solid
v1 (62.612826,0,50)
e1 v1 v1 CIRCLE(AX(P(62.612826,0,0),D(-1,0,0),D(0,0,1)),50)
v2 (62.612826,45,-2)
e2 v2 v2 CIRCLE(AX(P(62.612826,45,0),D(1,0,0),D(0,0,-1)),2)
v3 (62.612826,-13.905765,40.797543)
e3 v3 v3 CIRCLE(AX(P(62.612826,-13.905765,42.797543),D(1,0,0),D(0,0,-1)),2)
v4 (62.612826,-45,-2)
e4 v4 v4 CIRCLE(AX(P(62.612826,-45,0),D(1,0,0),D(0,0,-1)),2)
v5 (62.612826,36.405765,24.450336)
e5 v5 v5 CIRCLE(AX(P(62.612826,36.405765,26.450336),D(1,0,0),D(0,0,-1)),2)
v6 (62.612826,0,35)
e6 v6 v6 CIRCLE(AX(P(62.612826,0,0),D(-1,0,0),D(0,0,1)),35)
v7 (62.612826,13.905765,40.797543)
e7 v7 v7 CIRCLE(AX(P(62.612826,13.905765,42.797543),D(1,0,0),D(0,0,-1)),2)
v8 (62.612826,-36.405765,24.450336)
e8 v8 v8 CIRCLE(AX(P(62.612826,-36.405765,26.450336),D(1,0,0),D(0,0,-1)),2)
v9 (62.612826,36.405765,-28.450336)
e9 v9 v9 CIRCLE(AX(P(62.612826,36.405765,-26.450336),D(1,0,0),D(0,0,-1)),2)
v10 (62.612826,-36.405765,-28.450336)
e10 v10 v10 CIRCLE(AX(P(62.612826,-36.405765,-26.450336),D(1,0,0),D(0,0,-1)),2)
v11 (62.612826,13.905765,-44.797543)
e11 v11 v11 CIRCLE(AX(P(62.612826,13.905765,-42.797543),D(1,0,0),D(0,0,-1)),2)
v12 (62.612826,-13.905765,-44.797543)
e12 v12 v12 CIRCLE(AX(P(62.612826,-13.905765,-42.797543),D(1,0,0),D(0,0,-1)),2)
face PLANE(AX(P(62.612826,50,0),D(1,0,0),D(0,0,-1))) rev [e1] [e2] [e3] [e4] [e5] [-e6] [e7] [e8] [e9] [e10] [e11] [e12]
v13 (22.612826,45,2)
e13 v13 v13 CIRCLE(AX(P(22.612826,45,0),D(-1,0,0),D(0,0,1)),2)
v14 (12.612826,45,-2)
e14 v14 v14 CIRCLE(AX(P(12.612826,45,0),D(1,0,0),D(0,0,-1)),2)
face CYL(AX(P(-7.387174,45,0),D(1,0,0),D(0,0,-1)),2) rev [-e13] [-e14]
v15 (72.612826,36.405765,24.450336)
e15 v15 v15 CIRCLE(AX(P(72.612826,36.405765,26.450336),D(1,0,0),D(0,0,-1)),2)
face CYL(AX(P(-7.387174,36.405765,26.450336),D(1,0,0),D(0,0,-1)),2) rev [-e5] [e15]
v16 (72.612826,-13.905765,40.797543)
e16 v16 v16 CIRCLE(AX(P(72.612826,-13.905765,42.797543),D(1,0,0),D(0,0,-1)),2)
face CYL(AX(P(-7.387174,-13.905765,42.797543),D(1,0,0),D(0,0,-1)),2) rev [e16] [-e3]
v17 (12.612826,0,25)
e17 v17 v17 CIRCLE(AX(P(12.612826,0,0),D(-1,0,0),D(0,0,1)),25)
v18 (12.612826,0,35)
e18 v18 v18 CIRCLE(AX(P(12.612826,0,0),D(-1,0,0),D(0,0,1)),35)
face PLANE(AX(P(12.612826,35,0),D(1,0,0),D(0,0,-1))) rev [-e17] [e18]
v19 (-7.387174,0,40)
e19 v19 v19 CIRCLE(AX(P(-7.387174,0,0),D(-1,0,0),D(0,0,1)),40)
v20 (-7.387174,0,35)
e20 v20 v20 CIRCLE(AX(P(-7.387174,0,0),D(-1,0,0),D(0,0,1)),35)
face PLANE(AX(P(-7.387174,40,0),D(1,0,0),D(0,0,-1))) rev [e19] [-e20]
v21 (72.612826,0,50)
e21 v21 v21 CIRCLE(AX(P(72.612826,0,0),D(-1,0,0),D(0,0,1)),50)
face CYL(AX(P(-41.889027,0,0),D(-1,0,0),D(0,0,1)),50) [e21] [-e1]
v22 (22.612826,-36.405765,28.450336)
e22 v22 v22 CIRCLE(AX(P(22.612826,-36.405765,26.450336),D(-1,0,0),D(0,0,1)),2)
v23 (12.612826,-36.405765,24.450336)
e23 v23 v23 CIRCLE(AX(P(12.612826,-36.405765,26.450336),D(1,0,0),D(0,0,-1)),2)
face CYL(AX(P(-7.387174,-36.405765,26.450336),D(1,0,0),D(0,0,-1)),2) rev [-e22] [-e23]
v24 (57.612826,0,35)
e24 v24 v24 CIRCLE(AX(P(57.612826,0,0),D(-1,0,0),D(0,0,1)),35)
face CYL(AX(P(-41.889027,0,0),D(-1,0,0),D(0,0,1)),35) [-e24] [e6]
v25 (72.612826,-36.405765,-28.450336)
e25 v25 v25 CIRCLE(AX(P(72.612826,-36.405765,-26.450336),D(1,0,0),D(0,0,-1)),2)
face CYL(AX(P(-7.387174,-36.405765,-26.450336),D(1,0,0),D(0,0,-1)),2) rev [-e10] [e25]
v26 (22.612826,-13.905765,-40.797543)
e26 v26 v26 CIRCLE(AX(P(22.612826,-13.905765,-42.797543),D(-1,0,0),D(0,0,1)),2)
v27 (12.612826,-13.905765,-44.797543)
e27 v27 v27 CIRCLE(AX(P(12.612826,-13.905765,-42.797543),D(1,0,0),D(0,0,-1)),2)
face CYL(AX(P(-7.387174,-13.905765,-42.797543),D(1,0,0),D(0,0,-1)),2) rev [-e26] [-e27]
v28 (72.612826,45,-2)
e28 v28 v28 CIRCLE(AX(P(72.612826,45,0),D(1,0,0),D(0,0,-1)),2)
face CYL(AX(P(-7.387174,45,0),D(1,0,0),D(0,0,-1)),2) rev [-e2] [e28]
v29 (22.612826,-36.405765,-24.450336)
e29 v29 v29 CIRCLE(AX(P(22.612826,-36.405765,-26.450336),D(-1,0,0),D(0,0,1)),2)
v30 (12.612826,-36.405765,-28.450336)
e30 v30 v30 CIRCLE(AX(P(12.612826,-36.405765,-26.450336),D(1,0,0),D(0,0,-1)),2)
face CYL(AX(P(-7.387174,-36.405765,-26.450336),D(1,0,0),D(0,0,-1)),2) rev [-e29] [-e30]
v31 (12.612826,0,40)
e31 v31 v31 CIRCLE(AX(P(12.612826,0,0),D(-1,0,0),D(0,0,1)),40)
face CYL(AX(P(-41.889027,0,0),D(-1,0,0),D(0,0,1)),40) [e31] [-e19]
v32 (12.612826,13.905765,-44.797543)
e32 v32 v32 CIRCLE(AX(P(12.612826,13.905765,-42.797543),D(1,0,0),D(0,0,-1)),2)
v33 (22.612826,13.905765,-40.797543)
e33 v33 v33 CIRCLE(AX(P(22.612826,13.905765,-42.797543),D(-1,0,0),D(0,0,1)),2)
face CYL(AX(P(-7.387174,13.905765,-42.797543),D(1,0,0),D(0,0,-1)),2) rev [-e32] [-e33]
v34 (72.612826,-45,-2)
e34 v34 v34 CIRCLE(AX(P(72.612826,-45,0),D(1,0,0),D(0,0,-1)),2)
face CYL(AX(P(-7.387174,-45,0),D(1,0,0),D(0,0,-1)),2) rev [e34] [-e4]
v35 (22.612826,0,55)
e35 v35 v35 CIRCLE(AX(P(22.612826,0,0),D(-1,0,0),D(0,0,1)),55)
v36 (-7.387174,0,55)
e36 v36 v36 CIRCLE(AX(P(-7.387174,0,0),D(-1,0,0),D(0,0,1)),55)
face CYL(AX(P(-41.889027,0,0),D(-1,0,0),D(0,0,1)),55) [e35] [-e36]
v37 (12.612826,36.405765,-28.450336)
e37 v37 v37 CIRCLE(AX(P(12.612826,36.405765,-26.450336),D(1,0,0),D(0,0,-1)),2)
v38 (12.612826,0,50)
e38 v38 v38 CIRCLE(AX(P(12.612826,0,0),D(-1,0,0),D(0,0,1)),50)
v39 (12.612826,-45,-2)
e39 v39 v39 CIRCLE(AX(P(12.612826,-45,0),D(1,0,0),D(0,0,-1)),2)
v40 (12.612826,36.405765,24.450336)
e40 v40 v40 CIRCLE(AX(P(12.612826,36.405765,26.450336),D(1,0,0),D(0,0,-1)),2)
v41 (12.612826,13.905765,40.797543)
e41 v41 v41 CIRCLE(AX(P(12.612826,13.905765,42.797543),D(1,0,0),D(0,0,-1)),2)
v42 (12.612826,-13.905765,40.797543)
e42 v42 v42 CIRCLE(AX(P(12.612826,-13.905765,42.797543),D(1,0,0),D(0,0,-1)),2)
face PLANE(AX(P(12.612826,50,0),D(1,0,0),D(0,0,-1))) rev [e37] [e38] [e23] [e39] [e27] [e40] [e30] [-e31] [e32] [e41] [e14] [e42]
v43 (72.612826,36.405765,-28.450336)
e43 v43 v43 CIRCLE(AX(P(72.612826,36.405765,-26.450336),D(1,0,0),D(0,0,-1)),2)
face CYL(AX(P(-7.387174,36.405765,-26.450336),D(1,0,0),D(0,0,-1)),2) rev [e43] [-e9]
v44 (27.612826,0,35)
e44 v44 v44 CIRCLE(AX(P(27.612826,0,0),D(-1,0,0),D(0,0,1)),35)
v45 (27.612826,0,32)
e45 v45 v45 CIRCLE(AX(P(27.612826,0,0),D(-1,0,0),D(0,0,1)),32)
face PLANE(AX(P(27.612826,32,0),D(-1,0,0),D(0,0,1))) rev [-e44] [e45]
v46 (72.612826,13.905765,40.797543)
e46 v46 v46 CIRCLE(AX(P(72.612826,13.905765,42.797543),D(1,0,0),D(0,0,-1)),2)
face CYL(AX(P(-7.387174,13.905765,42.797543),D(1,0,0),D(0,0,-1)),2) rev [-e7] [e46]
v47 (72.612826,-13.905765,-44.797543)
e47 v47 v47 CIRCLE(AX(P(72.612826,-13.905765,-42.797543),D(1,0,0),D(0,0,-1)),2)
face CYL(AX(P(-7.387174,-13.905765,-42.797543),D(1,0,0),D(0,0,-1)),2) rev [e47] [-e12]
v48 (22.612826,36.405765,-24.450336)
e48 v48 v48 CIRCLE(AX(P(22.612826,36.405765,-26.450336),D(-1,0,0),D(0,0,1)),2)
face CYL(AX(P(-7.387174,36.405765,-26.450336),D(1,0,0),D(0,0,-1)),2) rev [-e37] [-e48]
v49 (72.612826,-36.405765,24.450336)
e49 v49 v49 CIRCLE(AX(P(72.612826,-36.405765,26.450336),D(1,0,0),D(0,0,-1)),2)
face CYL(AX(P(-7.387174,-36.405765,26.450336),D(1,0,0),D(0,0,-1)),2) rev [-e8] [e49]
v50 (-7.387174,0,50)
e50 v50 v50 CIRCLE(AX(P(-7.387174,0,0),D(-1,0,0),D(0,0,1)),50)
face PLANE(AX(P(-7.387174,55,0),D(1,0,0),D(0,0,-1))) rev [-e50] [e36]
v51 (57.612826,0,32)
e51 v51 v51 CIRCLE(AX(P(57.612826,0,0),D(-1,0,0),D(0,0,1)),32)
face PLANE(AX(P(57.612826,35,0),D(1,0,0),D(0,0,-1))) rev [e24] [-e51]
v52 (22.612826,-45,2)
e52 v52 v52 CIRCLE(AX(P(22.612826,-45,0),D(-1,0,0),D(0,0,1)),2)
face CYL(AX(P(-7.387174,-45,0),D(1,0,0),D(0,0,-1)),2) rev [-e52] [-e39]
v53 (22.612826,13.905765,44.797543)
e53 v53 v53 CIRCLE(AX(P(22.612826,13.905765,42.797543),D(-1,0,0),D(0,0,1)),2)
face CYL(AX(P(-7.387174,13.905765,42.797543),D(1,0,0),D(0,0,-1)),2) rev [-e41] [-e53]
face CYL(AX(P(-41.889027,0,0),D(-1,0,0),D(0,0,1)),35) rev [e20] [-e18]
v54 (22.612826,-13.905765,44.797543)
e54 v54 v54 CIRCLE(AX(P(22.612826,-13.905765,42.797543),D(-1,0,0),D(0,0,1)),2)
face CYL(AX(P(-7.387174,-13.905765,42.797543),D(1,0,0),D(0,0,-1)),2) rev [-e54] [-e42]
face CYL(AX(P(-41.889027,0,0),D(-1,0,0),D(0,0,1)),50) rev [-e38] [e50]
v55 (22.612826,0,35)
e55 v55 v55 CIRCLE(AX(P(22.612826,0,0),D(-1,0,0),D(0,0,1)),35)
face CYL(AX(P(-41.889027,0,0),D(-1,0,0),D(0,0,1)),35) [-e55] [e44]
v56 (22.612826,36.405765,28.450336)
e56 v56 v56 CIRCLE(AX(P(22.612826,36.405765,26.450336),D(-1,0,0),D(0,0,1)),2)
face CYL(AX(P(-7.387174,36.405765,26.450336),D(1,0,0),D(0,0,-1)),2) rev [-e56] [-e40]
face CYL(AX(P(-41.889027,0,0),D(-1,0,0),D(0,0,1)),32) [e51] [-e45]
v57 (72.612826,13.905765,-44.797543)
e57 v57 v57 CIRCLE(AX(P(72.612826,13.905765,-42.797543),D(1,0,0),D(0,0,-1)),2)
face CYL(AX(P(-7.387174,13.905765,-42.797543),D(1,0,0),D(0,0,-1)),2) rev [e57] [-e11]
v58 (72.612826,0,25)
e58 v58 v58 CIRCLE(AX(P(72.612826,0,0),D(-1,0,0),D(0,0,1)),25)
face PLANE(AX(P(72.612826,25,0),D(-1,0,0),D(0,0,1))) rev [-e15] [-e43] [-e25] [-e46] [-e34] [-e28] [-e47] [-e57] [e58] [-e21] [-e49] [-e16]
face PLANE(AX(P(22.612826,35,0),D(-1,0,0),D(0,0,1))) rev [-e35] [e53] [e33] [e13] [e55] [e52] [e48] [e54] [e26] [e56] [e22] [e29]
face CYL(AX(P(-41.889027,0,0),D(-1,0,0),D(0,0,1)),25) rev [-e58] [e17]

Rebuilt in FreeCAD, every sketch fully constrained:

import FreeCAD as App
import Part
import Sketcher
from FreeCAD import Vector
Q = App.Units.Quantity

doc = App.newDocument("Part")
body = doc.addObject("PartDesign::Body", "Body")

# Sketch on XY plane
sketch1 = doc.addObject("Sketcher::SketchObject", "Sketch")
body.addObject(sketch1)
sketch1.AttachmentSupport = (doc.XY_Plane, [""])
sketch1.MapMode = "FlatFace"
sketch1.addGeometry([
    Part.LineSegment(Vector(72.612826, 25, 0), Vector(72.612826, 50, 0)),  # 0
    Part.LineSegment(Vector(72.612826, 50, 0), Vector(62.612826, 50, 0)),  # 1
    Part.LineSegment(Vector(62.612826, 50, 0), Vector(62.612826, 35, 0)),  # 2
    Part.LineSegment(Vector(62.612826, 35, 0), Vector(57.612826, 35, 0)),  # 3
    Part.LineSegment(Vector(57.612826, 35, 0), Vector(57.612826, 32, 0)),  # 4
    Part.LineSegment(Vector(57.612826, 32, 0), Vector(27.612826, 32, 0)),  # 5
    Part.LineSegment(Vector(27.612826, 32, 0), Vector(27.612826, 35, 0)),  # 6
    Part.LineSegment(Vector(27.612826, 35, 0), Vector(22.612826, 35, 0)),  # 7
    Part.LineSegment(Vector(22.612826, 35, 0), Vector(22.612826, 55, 0)),  # 8
    Part.LineSegment(Vector(22.612826, 55, 0), Vector(-7.387174, 55, 0)),  # 9
    Part.LineSegment(Vector(-7.387174, 55, 0), Vector(-7.387174, 50, 0)),  # 10
    Part.LineSegment(Vector(-7.387174, 50, 0), Vector(12.612826, 50, 0)),  # 11
    Part.LineSegment(Vector(12.612826, 50, 0), Vector(12.612826, 40, 0)),  # 12
    Part.LineSegment(Vector(12.612826, 40, 0), Vector(-7.387174, 40, 0)),  # 13
    Part.LineSegment(Vector(-7.387174, 40, 0), Vector(-7.387174, 35, 0)),  # 14
    Part.LineSegment(Vector(-7.387174, 35, 0), Vector(12.612826, 35, 0)),  # 15
    Part.LineSegment(Vector(12.612826, 35, 0), Vector(12.612826, 25, 0)),  # 16
    Part.LineSegment(Vector(12.612826, 25, 0), Vector(72.612826, 25, 0)),  # 17
], False)
sketch1.addConstraint([
    Sketcher.Constraint("Coincident", 0, 2, 1, 1),
    Sketcher.Constraint("Coincident", 1, 2, 2, 1),
    Sketcher.Constraint("Coincident", 2, 2, 3, 1),
    Sketcher.Constraint("Coincident", 3, 2, 4, 1),
    Sketcher.Constraint("Coincident", 4, 2, 5, 1),
    Sketcher.Constraint("Coincident", 5, 2, 6, 1),
    Sketcher.Constraint("Coincident", 6, 2, 7, 1),
    Sketcher.Constraint("Coincident", 7, 2, 8, 1),
    Sketcher.Constraint("Coincident", 8, 2, 9, 1),
    Sketcher.Constraint("Coincident", 9, 2, 10, 1),
    Sketcher.Constraint("Coincident", 10, 2, 11, 1),
    Sketcher.Constraint("Coincident", 11, 2, 12, 1),
    Sketcher.Constraint("Coincident", 12, 2, 13, 1),
    Sketcher.Constraint("Coincident", 13, 2, 14, 1),
    Sketcher.Constraint("Coincident", 14, 2, 15, 1),
    Sketcher.Constraint("Coincident", 15, 2, 16, 1),
    Sketcher.Constraint("Coincident", 16, 2, 17, 1),
    Sketcher.Constraint("Coincident", 17, 2, 0, 1),
    Sketcher.Constraint("Vertical", 0),
    Sketcher.Constraint("Horizontal", 1),
    Sketcher.Constraint("Vertical", 2),
    Sketcher.Constraint("Horizontal", 3),
    Sketcher.Constraint("Vertical", 4),
    Sketcher.Constraint("Horizontal", 5),
    Sketcher.Constraint("Vertical", 6),
    Sketcher.Constraint("Horizontal", 7),
    Sketcher.Constraint("Vertical", 8),
    Sketcher.Constraint("Horizontal", 9),
    Sketcher.Constraint("Vertical", 10),
    Sketcher.Constraint("Horizontal", 11),
    Sketcher.Constraint("Vertical", 12),
    Sketcher.Constraint("Horizontal", 13),
    Sketcher.Constraint("Vertical", 14),
    Sketcher.Constraint("Horizontal", 15),
    Sketcher.Constraint("Vertical", 16),
    Sketcher.Constraint("Horizontal", 17),
    Sketcher.Constraint("Horizontal", 3, 2, 6, 2),
    Sketcher.Constraint("Horizontal", 1, 2, 10, 2),
    Sketcher.Constraint("Horizontal", 7, 2, 14, 2),
    Sketcher.Constraint("Vertical", 10, 2, 13, 2),
    Sketcher.Constraint("Vertical", 12, 2, 15, 2),
    Sketcher.Constraint("Equal", 3, 7),
    Sketcher.Constraint("Equal", 5, 9),
    Sketcher.Constraint("Equal", 15, 8),
    Sketcher.Constraint("Equal", 7, 10),
    Sketcher.Constraint("Equal", 1, 12),
    Sketcher.Constraint("Equal", 10, 14),
    Sketcher.Constraint("Equal", 12, 16),
    Sketcher.Constraint("DistanceX", 1, 2, 1, 1, Q("10 mm")),
    Sketcher.Constraint("DistanceX", 3, 2, 3, 1, Q("5 mm")),
    Sketcher.Constraint("DistanceX", 5, 2, 5, 1, Q("30 mm")),
    Sketcher.Constraint("DistanceY", 4, 2, 4, 1, Q("3 mm")),
    Sketcher.Constraint("DistanceY", -1, 1, 0, 2, Q("50 mm")),
    Sketcher.Constraint("DistanceX", -1, 1, 0, 2, Q("72.612826 mm")),
])
revolution = doc.addObject("PartDesign::Revolution", "Revolution")
body.addObject(revolution)
revolution.Profile = sketch1
revolution.ReferenceAxis = (sketch1, ["H_Axis"])
revolution.Angle = 360

# Sketch on YZ plane
sketch2 = doc.addObject("Sketcher::SketchObject", "Sketch001")
body.addObject(sketch2)
sketch2.AttachmentSupport = (doc.YZ_Plane, [""])
sketch2.MapMode = "FlatFace"
sketch2.AttachmentOffset = App.Placement(Vector(0, 0, 72.612826), App.Rotation())
sketch2.addGeometry([
    Part.Circle(Vector(45, 0, 0), Vector(0, 0, 1), 2),  # 0
    Part.Circle(Vector(36.405765, -26.450336, 0), Vector(0, 0, 1), 2),  # 1
    Part.Circle(Vector(13.905765, -42.797543, 0), Vector(0, 0, 1), 2),  # 2
    Part.Circle(Vector(-13.905765, -42.797543, 0), Vector(0, 0, 1), 2),  # 3
    Part.Circle(Vector(-36.405765, -26.450336, 0), Vector(0, 0, 1), 2),  # 4
    Part.Circle(Vector(-45, 0, 0), Vector(0, 0, 1), 2),  # 5
    Part.Circle(Vector(-36.405765, 26.450336, 0), Vector(0, 0, 1), 2),  # 6
    Part.Circle(Vector(-13.905765, 42.797543, 0), Vector(0, 0, 1), 2),  # 7
    Part.Circle(Vector(13.905765, 42.797543, 0), Vector(0, 0, 1), 2),  # 8
    Part.Circle(Vector(36.405765, 26.450336, 0), Vector(0, 0, 1), 2),  # 9
], False)
sketch2.addConstraint([
    Sketcher.Constraint("Equal", 0, 1),
    Sketcher.Constraint("Equal", 1, 2),
    Sketcher.Constraint("Equal", 2, 3),
    Sketcher.Constraint("Equal", 3, 4),
    Sketcher.Constraint("Equal", 4, 5),
    Sketcher.Constraint("Equal", 5, 6),
    Sketcher.Constraint("Equal", 6, 7),
    Sketcher.Constraint("Equal", 7, 8),
    Sketcher.Constraint("Equal", 8, 9),
    Sketcher.Constraint("Symmetric", 0, 3, 5, 3, -1, 1),
    Sketcher.Constraint("Symmetric", 1, 3, 6, 3, -1, 1),
    Sketcher.Constraint("Symmetric", 2, 3, 7, 3, -1, 1),
    Sketcher.Constraint("Symmetric", 3, 3, 8, 3, -1, 1),
    Sketcher.Constraint("Symmetric", 4, 3, 9, 3, -1, 1),
    Sketcher.Constraint("Symmetric", 2, 3, 3, 3, -2),
    Sketcher.Constraint("Symmetric", 1, 3, 4, 3, -2),
    Sketcher.Constraint("PointOnObject", 0, 3, -1),
    Sketcher.Constraint("Diameter", 0, Q("4 mm")),
    Sketcher.Constraint("DistanceX", -1, 1, 0, 3, Q("45 mm")),
    Sketcher.Constraint("DistanceX", 2, 3, 1, 3, Q("22.5 mm")),
    Sketcher.Constraint("DistanceX", 3, 3, 2, 3, Q("27.811529 mm")),
    Sketcher.Constraint("DistanceY", 3, 3, 6, 3, Q("69.24788 mm")),
    Sketcher.Constraint("DistanceY", 1, 3, -1, 1, Q("26.450336 mm")),
])
pocket1 = doc.addObject("PartDesign::Pocket", "Pocket")
body.addObject(pocket1)
pocket1.Profile = sketch2
pocket1.Type = "ThroughAll"

doc.recompute()
